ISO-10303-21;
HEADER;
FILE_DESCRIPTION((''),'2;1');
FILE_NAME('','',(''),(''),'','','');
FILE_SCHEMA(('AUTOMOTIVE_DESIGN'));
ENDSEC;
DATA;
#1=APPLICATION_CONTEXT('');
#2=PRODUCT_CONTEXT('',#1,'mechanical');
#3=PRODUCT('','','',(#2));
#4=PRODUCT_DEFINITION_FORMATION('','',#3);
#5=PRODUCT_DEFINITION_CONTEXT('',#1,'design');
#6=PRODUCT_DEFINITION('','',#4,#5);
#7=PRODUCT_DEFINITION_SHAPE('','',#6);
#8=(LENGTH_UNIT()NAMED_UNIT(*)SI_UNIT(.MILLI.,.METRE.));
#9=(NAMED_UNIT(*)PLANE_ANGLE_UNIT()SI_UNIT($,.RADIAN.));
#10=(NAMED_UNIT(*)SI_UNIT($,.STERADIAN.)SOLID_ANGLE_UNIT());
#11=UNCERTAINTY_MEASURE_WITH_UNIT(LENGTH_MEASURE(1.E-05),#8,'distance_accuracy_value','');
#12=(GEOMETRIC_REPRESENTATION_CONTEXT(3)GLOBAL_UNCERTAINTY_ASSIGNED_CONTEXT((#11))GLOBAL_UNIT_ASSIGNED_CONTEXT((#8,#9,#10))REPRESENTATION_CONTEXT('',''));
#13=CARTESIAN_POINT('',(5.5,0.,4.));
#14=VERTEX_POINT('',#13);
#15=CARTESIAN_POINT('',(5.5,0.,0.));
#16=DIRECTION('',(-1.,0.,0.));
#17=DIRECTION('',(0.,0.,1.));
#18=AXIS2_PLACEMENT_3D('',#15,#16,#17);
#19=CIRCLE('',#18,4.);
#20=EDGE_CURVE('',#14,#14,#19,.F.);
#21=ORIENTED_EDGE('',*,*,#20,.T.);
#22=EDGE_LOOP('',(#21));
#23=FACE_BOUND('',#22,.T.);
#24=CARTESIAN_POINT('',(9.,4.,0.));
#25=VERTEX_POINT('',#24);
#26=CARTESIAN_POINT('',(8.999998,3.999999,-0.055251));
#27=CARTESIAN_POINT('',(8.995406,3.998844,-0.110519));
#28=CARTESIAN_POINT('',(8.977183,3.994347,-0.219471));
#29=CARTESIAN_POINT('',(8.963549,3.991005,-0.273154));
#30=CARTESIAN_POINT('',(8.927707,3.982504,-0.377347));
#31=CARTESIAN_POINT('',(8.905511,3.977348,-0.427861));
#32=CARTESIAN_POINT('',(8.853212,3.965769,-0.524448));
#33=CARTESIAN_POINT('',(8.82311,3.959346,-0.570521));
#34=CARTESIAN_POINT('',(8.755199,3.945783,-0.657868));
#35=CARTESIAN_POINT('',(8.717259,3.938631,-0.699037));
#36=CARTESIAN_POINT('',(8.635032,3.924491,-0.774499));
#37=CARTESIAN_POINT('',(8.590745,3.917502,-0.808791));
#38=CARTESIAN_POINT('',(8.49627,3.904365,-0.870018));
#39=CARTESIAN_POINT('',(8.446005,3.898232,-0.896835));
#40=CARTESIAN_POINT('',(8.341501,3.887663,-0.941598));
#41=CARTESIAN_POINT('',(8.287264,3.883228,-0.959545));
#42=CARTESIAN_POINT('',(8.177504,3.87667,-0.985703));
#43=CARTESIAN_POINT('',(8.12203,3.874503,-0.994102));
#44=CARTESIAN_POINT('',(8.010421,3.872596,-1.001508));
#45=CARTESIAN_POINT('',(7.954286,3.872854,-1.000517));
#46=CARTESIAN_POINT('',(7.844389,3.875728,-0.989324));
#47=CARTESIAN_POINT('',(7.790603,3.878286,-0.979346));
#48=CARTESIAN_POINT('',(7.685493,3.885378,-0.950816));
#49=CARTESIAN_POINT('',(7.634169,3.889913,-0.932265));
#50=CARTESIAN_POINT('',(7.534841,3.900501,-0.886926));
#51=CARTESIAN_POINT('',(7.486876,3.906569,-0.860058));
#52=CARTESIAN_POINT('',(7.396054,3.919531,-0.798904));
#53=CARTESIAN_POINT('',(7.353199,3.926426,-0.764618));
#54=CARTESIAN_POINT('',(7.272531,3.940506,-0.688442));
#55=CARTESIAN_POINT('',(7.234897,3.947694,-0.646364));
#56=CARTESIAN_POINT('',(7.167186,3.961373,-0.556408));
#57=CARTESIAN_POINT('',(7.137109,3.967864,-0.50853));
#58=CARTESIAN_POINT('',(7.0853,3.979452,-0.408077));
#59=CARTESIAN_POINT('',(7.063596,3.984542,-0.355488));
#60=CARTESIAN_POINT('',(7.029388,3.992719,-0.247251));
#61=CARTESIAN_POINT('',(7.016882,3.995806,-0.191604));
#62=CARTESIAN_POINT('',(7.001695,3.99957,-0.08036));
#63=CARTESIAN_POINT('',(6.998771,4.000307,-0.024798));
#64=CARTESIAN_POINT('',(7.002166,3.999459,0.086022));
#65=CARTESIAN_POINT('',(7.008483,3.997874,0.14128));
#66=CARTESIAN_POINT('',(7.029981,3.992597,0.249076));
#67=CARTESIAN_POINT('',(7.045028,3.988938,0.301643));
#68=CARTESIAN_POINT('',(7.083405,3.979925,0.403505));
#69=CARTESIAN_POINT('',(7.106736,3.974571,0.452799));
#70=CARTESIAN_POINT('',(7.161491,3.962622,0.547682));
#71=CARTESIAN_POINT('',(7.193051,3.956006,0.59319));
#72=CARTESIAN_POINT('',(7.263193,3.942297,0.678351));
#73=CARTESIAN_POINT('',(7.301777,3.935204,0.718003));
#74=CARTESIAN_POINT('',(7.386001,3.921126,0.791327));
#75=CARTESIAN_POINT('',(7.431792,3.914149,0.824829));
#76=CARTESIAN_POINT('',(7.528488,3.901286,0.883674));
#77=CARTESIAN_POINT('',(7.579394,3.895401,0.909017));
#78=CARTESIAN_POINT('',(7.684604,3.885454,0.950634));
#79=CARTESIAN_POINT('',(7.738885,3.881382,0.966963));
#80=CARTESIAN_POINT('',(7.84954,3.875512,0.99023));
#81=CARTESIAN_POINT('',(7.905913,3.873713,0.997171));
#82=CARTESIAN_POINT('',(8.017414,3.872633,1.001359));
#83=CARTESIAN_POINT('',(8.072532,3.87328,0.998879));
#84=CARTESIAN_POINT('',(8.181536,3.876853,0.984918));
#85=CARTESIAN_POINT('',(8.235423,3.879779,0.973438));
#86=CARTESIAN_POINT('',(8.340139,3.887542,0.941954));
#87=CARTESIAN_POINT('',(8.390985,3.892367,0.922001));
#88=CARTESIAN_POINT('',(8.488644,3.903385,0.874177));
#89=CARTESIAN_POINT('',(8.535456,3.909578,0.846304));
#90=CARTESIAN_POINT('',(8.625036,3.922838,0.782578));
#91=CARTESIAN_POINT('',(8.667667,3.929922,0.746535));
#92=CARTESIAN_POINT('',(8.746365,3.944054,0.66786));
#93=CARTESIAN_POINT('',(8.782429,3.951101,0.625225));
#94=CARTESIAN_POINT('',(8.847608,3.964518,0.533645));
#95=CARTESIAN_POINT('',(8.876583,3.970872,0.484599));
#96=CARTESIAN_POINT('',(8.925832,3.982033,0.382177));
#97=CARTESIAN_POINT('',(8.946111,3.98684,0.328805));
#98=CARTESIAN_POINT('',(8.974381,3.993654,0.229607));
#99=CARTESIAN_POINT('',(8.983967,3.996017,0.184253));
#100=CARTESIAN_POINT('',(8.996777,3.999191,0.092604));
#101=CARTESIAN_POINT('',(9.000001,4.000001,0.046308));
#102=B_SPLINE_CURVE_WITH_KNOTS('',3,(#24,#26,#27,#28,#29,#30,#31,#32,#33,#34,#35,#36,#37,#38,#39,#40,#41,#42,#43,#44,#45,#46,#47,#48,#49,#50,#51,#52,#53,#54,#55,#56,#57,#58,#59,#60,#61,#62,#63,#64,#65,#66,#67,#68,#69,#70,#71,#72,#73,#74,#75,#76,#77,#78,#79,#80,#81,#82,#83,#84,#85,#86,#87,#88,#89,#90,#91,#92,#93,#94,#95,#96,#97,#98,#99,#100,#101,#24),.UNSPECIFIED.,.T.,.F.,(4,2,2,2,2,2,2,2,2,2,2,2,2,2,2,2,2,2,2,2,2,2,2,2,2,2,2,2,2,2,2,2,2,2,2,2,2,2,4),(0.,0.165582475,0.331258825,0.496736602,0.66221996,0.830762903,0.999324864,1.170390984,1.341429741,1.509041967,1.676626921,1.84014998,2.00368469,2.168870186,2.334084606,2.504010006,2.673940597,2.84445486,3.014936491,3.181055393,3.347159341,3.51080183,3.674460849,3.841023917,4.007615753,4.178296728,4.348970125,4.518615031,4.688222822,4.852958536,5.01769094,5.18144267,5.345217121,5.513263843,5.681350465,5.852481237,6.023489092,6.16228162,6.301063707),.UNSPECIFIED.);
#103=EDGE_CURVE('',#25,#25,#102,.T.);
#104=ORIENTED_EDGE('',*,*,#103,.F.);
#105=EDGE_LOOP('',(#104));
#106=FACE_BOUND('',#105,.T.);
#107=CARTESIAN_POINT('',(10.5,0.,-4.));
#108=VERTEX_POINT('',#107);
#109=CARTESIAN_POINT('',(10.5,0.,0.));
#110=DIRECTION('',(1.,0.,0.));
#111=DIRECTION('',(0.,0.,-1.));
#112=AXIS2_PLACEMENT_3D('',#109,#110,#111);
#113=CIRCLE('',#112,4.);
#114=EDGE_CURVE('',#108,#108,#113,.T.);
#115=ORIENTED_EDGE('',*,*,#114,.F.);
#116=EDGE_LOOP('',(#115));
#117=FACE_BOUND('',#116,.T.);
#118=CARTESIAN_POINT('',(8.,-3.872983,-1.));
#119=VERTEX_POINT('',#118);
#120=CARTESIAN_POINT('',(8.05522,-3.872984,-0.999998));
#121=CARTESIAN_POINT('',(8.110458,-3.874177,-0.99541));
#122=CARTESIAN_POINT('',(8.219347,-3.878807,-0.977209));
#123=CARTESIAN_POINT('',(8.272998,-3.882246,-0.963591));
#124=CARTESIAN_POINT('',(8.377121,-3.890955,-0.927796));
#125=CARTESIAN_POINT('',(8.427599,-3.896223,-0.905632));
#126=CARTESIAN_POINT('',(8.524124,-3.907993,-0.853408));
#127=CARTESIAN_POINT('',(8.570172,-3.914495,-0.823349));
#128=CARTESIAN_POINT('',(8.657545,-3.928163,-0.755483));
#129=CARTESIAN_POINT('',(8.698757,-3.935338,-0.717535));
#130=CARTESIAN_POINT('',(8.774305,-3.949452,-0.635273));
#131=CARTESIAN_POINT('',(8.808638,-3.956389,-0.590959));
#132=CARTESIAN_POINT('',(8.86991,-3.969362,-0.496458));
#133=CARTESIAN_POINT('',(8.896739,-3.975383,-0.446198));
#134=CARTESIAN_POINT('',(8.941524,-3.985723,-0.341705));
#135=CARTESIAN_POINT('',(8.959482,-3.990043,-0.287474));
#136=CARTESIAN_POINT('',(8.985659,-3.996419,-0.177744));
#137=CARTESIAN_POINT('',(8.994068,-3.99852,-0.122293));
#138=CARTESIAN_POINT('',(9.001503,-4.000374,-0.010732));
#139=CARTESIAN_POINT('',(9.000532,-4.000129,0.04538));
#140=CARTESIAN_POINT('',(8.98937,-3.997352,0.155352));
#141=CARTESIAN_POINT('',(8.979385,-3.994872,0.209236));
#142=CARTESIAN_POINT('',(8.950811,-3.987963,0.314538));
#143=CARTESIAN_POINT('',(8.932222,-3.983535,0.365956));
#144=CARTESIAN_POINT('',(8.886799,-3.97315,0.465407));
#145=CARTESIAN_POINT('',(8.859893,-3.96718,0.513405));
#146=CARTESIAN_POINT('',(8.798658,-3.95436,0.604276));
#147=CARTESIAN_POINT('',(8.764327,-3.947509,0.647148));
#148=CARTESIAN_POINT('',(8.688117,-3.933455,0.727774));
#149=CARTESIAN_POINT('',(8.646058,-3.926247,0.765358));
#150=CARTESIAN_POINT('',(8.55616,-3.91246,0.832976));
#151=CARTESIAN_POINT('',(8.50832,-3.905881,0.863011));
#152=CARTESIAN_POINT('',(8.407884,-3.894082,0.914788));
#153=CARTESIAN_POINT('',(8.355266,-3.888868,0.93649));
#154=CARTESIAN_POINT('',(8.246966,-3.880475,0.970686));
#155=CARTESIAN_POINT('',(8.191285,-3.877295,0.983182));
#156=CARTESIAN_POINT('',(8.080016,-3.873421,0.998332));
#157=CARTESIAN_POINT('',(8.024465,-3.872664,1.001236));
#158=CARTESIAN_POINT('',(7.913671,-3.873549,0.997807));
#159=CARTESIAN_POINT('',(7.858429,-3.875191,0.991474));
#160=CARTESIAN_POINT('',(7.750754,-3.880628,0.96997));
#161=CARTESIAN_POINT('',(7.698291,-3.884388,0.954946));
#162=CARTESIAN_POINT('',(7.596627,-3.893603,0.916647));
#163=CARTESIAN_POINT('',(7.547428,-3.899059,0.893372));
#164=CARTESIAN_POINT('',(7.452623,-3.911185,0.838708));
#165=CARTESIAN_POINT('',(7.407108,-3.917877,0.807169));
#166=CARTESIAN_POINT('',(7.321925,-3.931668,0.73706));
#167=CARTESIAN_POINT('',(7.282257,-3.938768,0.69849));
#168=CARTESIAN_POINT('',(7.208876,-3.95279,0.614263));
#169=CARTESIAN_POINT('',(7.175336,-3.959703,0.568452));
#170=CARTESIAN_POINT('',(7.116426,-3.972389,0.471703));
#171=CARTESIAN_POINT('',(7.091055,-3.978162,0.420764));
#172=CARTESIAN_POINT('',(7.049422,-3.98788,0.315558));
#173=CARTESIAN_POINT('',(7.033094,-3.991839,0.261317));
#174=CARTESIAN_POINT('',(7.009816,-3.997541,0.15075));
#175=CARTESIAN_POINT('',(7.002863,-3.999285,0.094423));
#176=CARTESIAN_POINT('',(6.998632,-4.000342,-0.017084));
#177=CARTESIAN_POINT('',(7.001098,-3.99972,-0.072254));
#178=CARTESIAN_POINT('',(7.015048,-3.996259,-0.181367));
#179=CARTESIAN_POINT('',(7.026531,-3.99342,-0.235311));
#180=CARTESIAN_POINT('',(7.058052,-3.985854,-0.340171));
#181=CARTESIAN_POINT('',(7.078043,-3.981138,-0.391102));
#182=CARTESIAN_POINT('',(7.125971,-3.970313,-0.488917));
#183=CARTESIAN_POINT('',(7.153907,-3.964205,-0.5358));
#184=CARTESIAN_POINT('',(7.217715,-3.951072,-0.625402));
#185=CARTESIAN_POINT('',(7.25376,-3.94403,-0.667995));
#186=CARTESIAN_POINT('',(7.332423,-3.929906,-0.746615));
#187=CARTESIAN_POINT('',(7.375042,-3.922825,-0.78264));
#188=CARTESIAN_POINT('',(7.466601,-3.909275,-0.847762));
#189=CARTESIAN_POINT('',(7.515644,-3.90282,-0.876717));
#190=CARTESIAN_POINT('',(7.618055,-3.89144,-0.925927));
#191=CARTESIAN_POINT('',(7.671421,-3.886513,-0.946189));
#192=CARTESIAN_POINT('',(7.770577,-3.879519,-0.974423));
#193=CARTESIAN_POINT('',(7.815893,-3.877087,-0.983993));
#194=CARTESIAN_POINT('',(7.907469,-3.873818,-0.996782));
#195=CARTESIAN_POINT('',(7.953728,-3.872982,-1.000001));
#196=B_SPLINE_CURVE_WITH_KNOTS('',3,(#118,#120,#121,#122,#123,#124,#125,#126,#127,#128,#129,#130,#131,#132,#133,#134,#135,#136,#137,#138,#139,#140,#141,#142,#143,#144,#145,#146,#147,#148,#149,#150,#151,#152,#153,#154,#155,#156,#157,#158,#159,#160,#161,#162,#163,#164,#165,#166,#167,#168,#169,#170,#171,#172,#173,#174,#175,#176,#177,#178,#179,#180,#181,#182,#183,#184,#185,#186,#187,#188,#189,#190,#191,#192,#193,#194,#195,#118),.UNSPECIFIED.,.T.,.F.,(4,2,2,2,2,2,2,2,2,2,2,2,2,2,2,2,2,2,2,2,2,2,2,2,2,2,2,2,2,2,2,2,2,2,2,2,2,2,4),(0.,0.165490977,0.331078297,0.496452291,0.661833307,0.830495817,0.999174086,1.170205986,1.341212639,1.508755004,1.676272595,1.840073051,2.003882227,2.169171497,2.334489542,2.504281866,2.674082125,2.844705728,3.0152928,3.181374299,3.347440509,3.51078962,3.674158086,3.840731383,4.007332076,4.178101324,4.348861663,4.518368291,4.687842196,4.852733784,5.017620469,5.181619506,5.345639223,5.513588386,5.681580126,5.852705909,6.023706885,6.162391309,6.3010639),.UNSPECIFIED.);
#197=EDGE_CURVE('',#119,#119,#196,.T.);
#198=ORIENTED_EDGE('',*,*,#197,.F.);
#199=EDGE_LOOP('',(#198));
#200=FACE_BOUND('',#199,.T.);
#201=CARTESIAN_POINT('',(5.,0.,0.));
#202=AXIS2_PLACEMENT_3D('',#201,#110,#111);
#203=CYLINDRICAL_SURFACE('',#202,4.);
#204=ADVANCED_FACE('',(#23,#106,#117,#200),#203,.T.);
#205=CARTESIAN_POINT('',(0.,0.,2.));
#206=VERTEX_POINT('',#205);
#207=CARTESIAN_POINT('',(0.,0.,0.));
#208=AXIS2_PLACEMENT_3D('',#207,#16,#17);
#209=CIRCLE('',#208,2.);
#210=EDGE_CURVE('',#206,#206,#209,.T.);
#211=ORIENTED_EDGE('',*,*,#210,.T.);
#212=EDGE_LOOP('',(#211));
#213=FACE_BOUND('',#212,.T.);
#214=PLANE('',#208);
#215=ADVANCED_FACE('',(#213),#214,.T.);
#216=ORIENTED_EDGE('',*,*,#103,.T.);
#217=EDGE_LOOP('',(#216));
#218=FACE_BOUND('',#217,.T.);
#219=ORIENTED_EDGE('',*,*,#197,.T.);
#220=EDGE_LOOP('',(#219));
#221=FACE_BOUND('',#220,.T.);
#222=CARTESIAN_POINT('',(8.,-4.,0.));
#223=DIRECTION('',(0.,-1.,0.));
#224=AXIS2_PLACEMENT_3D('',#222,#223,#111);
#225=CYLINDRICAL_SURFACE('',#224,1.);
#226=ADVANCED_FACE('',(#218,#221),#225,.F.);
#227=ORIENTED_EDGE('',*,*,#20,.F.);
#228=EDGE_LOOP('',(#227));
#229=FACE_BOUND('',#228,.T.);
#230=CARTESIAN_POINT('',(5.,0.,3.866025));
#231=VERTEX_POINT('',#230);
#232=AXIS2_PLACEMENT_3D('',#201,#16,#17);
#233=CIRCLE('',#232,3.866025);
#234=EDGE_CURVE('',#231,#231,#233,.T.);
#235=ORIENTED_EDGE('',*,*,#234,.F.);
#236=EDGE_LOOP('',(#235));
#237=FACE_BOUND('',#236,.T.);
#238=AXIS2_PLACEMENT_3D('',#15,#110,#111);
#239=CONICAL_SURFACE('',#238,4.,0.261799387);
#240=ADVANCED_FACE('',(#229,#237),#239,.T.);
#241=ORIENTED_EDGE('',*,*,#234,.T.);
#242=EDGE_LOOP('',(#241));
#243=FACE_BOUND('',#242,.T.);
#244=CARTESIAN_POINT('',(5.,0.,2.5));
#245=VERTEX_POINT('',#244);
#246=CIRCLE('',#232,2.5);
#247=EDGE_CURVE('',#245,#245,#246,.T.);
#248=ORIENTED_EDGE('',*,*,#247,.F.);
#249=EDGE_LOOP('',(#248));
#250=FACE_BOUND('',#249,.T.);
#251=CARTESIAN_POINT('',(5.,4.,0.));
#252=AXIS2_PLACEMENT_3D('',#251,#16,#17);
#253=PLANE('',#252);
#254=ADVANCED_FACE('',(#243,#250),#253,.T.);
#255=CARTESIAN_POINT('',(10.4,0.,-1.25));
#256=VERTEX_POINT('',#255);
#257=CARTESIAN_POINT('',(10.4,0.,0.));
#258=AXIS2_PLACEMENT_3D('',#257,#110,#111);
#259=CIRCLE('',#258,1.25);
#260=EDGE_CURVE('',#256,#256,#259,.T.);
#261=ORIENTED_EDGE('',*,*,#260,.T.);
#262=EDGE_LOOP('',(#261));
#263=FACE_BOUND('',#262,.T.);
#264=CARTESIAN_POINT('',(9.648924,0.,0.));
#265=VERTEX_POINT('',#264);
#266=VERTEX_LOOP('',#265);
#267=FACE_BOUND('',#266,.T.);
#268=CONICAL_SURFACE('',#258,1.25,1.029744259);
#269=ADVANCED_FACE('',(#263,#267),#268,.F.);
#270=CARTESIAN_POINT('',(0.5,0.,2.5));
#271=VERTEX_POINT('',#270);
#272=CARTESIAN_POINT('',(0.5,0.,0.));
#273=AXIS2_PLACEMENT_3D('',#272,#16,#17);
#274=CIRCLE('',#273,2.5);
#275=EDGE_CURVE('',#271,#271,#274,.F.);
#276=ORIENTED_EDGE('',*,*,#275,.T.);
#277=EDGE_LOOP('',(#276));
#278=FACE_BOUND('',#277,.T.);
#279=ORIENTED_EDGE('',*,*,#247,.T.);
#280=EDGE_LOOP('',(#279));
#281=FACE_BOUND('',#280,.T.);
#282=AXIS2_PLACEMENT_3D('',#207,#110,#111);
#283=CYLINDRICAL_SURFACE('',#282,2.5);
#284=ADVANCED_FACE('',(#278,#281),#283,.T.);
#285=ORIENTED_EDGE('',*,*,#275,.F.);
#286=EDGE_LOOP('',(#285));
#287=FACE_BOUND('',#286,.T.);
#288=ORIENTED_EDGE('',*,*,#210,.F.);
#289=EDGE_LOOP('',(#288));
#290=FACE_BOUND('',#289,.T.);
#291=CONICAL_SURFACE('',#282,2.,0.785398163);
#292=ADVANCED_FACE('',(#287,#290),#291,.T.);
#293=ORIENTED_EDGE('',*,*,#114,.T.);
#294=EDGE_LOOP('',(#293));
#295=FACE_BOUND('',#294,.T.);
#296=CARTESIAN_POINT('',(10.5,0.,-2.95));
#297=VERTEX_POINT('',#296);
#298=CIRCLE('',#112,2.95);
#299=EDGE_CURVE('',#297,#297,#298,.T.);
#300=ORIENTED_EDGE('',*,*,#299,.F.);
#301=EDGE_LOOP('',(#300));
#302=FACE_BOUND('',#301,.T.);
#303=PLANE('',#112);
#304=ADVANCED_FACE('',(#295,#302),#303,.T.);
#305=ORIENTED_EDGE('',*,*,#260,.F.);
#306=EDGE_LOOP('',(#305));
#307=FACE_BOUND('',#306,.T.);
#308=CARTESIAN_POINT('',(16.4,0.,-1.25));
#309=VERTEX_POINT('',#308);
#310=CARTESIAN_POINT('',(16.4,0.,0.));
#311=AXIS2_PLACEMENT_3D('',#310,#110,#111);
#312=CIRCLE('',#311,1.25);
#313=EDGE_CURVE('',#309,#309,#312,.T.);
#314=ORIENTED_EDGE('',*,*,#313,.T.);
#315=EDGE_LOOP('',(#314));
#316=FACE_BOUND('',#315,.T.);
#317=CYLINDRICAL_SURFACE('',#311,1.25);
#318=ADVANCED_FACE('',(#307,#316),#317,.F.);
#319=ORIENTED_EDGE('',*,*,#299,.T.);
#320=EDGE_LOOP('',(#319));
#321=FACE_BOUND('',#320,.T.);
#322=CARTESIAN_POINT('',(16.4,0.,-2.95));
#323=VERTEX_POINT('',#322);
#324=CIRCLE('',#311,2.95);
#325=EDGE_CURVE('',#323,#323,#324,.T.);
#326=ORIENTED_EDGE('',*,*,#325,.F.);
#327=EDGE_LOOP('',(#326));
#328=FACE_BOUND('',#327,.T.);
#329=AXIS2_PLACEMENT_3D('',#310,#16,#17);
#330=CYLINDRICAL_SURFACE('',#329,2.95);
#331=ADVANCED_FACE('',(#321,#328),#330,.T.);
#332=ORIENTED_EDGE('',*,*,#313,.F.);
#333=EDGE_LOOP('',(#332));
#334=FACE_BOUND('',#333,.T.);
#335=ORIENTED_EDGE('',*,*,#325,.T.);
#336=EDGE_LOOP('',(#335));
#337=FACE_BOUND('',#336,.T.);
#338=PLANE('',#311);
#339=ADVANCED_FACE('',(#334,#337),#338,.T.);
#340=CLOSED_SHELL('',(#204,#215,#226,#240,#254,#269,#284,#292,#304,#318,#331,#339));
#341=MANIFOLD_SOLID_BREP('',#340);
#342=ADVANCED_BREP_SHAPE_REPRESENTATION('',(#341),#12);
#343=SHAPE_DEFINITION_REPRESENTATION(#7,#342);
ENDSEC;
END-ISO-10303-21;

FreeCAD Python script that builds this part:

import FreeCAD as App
import Part
import Sketcher

V = App.Vector


def edges_at(feature, points):
    """Names of the edges that pass closest to the given points."""
    edges = feature.Shape.Edges
    near = lambda p: min(range(len(edges)), key=lambda i: edges[i].distToShape(Part.Vertex(*p))[0])
    return sorted({f"Edge{near(p) + 1}" for p in points})


def add_polygon(sketch, points):
    """Adds a closed chain of lines whose ends are joined by coincident constraints."""
    first, n = sketch.GeometryCount, len(points)
    for a, b in zip(points, points[1:] + points[:1]):
        sketch.addGeometry(Part.LineSegment(App.Vector(*a, 0), App.Vector(*b, 0)), False)
    for i in range(n):
        sketch.addConstraint(Sketcher.Constraint("Coincident", first + i, 2, first + (i + 1) % n, 1))

doc = App.newDocument("Part")
body = doc.addObject("PartDesign::Body", "Body")

# Sketch on XY plane
sketch1 = body.newObject("Sketcher::SketchObject", "Sketch")
sketch1.AttachmentSupport = (doc.getObject("XY_Plane"), [""])
sketch1.MapMode = "FlatFace"
add_polygon(sketch1, [(5, 4), (5, 0), (10.5, 0), (10.5, 4)])  # lines 0-3
sketch1.addConstraint([
    Sketcher.Constraint("Vertical", 0),
    Sketcher.Constraint("Horizontal", 1),
    Sketcher.Constraint("Vertical", 2),
    Sketcher.Constraint("Horizontal", 3),
    Sketcher.Constraint("PointOnObject", 0, 2, -1),
    Sketcher.Constraint("DistanceY", 0, 2, 0, 1, 4.0),
    Sketcher.Constraint("DistanceX", 1, 1, 1, 2, 5.5),
    Sketcher.Constraint("DistanceX", -1, 1, 0, 2, 5.0),
])
revolution = body.newObject("PartDesign::Revolution", "Revolution")
revolution.Profile = sketch1
revolution.ReferenceAxis = (sketch1, ["H_Axis"])
revolution.Angle = 360

# Sketch on YZ plane
sketch2 = body.newObject("Sketcher::SketchObject", "Sketch001")
sketch2.AttachmentSupport = (doc.getObject("YZ_Plane"), [""])
sketch2.MapMode = "FlatFace"
sketch2.AttachmentOffset = App.Placement(V(0, 0, 5), App.Rotation())
sketch2.addGeometry(Part.Circle(V(0, 0, 0), V(0, 0, 1), 2.5), False)
sketch2.addConstraint([
    Sketcher.Constraint("Coincident", 0, 3, -1, 1),
    Sketcher.Constraint("Diameter", 0, 5.0),
])
pad1 = body.newObject("PartDesign::Pad", "Pad")
pad1.Profile = sketch2
pad1.Length = 5
pad1.Reversed = True

# Sketch on YZ plane
sketch3 = body.newObject("Sketcher::SketchObject", "Sketch002")
sketch3.AttachmentSupport = (doc.getObject("YZ_Plane"), [""])
sketch3.MapMode = "FlatFace"
sketch3.AttachmentOffset = App.Placement(V(0, 0, 10.5), App.Rotation())
sketch3.addGeometry(Part.Circle(V(0, 0, 0), V(0, 0, 1), 2.95), False)
sketch3.addConstraint([
    Sketcher.Constraint("Coincident", 0, 3, -1, 1),
    Sketcher.Constraint("Diameter", 0, 5.9),
])
pad2 = body.newObject("PartDesign::Pad", "Pad001")
pad2.Profile = sketch3
pad2.Length = 5.9

# Sketch on XZ plane
sketch4 = body.newObject("Sketcher::SketchObject", "Sketch003")
sketch4.AttachmentSupport = (doc.getObject("XZ_Plane"), [""])
sketch4.MapMode = "FlatFace"
sketch4.AttachmentOffset = App.Placement(V(0, 0, 4), App.Rotation())
sketch4.addGeometry(Part.Circle(V(8, 0, 0), V(0, 0, 1), 1), False)
sketch4.addConstraint([
    Sketcher.Constraint("PointOnObject", 0, 3, -1),
    Sketcher.Constraint("Diameter", 0, 2.0),
    Sketcher.Constraint("DistanceX", -1, 1, 0, 3, 8.0),
])
doc.recompute()
hole = body.newObject("PartDesign::Hole", "Hole")
hole.Profile = sketch4
hole.ThreadType = "None"
hole.Diameter = 2
hole.DepthType = "ThroughAll"

# Sketch on YZ plane
sketch5 = body.newObject("Sketcher::SketchObject", "Sketch004")
sketch5.AttachmentSupport = (doc.getObject("YZ_Plane"), [""])
sketch5.MapMode = "FlatFace"
sketch5.AttachmentOffset = App.Placement(V(0, 0, 16.4), App.Rotation())
sketch5.addGeometry(Part.Circle(V(0, 0, 0), V(0, 0, 1), 1.25), False)
sketch5.addConstraint([
    Sketcher.Constraint("Coincident", 0, 3, -1, 1),
    Sketcher.Constraint("Diameter", 0, 2.5),
])
doc.recompute()
hole2 = body.newObject("PartDesign::Hole", "Hole001")
hole2.Profile = sketch5
hole2.ThreadType = "None"
hole2.Diameter = 2.5
hole2.DepthType = "Dimension"
hole2.Depth = 6
hole2.DrillPoint = "Angled"
hole2.DrillPointAngle = 118
doc.recompute()

chamfer = body.newObject("PartDesign::Chamfer", "Chamfer")
chamfer.Base = (hole2, edges_at(hole2, [(0, 0, -2.5)]))
chamfer.Size = 0.5
doc.recompute()

chamfer2 = body.newObject("PartDesign::Chamfer", "Chamfer001")
chamfer2.Base = (chamfer, edges_at(chamfer, [(5, 0, 4)]))
chamfer2.ChamferType = "Two distances"
chamfer2.Size = 0.133975
chamfer2.Size2 = 0.5

doc.recompute()
